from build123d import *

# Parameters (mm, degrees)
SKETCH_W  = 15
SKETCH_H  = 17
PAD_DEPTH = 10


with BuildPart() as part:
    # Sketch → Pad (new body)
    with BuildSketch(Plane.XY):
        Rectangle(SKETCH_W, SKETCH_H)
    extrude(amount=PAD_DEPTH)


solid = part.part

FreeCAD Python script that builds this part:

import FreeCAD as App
import Part
import Sketcher
from FreeCAD import Vector
Q = App.Units.Quantity

doc = App.newDocument("Part")
body = doc.addObject("PartDesign::Body", "Body")

sketch1 = doc.addObject("Sketcher::SketchObject", "Sketch")
body.addObject(sketch1)
sketch1.AttachmentSupport = (doc.XY_Plane, [""])
sketch1.MapMode = "FlatFace"
sketch1.addGeometry([
    Part.LineSegment(Vector(-8, 8, 0), Vector(-8, -8, 0)),
    Part.LineSegment(Vector(-8, -8, 0), Vector(8, -8, 0)),
    Part.LineSegment(Vector(8, -8, 0), Vector(8, 8, 0)),
    Part.LineSegment(Vector(8, 8, 0), Vector(-8, 8, 0)),
], False)
sketch1.addConstraint([
    Sketcher.Constraint("Coincident", 0, 2, 1, 1),
    Sketcher.Constraint("Coincident", 1, 2, 2, 1),
    Sketcher.Constraint("Coincident", 2, 2, 3, 1),
    Sketcher.Constraint("Coincident", 3, 2, 0, 1),
    Sketcher.Constraint("Vertical", 0),
    Sketcher.Constraint("Horizontal", 1),
    Sketcher.Constraint("Vertical", 2),
    Sketcher.Constraint("Horizontal", 3),
    Sketcher.Constraint("Symmetric", 0, 2, 2, 2, -1, 1),
    Sketcher.Constraint("DistanceX", 1, 1, 1, 2, Q("15 mm")),
    Sketcher.Constraint("DistanceY", 0, 2, 0, 1, Q("17 mm")),
])
pad1 = doc.addObject("PartDesign::Pad", "Pad")
body.addObject(pad1)
pad1.Profile = sketch1
pad1.Length = 10

doc.recompute()
